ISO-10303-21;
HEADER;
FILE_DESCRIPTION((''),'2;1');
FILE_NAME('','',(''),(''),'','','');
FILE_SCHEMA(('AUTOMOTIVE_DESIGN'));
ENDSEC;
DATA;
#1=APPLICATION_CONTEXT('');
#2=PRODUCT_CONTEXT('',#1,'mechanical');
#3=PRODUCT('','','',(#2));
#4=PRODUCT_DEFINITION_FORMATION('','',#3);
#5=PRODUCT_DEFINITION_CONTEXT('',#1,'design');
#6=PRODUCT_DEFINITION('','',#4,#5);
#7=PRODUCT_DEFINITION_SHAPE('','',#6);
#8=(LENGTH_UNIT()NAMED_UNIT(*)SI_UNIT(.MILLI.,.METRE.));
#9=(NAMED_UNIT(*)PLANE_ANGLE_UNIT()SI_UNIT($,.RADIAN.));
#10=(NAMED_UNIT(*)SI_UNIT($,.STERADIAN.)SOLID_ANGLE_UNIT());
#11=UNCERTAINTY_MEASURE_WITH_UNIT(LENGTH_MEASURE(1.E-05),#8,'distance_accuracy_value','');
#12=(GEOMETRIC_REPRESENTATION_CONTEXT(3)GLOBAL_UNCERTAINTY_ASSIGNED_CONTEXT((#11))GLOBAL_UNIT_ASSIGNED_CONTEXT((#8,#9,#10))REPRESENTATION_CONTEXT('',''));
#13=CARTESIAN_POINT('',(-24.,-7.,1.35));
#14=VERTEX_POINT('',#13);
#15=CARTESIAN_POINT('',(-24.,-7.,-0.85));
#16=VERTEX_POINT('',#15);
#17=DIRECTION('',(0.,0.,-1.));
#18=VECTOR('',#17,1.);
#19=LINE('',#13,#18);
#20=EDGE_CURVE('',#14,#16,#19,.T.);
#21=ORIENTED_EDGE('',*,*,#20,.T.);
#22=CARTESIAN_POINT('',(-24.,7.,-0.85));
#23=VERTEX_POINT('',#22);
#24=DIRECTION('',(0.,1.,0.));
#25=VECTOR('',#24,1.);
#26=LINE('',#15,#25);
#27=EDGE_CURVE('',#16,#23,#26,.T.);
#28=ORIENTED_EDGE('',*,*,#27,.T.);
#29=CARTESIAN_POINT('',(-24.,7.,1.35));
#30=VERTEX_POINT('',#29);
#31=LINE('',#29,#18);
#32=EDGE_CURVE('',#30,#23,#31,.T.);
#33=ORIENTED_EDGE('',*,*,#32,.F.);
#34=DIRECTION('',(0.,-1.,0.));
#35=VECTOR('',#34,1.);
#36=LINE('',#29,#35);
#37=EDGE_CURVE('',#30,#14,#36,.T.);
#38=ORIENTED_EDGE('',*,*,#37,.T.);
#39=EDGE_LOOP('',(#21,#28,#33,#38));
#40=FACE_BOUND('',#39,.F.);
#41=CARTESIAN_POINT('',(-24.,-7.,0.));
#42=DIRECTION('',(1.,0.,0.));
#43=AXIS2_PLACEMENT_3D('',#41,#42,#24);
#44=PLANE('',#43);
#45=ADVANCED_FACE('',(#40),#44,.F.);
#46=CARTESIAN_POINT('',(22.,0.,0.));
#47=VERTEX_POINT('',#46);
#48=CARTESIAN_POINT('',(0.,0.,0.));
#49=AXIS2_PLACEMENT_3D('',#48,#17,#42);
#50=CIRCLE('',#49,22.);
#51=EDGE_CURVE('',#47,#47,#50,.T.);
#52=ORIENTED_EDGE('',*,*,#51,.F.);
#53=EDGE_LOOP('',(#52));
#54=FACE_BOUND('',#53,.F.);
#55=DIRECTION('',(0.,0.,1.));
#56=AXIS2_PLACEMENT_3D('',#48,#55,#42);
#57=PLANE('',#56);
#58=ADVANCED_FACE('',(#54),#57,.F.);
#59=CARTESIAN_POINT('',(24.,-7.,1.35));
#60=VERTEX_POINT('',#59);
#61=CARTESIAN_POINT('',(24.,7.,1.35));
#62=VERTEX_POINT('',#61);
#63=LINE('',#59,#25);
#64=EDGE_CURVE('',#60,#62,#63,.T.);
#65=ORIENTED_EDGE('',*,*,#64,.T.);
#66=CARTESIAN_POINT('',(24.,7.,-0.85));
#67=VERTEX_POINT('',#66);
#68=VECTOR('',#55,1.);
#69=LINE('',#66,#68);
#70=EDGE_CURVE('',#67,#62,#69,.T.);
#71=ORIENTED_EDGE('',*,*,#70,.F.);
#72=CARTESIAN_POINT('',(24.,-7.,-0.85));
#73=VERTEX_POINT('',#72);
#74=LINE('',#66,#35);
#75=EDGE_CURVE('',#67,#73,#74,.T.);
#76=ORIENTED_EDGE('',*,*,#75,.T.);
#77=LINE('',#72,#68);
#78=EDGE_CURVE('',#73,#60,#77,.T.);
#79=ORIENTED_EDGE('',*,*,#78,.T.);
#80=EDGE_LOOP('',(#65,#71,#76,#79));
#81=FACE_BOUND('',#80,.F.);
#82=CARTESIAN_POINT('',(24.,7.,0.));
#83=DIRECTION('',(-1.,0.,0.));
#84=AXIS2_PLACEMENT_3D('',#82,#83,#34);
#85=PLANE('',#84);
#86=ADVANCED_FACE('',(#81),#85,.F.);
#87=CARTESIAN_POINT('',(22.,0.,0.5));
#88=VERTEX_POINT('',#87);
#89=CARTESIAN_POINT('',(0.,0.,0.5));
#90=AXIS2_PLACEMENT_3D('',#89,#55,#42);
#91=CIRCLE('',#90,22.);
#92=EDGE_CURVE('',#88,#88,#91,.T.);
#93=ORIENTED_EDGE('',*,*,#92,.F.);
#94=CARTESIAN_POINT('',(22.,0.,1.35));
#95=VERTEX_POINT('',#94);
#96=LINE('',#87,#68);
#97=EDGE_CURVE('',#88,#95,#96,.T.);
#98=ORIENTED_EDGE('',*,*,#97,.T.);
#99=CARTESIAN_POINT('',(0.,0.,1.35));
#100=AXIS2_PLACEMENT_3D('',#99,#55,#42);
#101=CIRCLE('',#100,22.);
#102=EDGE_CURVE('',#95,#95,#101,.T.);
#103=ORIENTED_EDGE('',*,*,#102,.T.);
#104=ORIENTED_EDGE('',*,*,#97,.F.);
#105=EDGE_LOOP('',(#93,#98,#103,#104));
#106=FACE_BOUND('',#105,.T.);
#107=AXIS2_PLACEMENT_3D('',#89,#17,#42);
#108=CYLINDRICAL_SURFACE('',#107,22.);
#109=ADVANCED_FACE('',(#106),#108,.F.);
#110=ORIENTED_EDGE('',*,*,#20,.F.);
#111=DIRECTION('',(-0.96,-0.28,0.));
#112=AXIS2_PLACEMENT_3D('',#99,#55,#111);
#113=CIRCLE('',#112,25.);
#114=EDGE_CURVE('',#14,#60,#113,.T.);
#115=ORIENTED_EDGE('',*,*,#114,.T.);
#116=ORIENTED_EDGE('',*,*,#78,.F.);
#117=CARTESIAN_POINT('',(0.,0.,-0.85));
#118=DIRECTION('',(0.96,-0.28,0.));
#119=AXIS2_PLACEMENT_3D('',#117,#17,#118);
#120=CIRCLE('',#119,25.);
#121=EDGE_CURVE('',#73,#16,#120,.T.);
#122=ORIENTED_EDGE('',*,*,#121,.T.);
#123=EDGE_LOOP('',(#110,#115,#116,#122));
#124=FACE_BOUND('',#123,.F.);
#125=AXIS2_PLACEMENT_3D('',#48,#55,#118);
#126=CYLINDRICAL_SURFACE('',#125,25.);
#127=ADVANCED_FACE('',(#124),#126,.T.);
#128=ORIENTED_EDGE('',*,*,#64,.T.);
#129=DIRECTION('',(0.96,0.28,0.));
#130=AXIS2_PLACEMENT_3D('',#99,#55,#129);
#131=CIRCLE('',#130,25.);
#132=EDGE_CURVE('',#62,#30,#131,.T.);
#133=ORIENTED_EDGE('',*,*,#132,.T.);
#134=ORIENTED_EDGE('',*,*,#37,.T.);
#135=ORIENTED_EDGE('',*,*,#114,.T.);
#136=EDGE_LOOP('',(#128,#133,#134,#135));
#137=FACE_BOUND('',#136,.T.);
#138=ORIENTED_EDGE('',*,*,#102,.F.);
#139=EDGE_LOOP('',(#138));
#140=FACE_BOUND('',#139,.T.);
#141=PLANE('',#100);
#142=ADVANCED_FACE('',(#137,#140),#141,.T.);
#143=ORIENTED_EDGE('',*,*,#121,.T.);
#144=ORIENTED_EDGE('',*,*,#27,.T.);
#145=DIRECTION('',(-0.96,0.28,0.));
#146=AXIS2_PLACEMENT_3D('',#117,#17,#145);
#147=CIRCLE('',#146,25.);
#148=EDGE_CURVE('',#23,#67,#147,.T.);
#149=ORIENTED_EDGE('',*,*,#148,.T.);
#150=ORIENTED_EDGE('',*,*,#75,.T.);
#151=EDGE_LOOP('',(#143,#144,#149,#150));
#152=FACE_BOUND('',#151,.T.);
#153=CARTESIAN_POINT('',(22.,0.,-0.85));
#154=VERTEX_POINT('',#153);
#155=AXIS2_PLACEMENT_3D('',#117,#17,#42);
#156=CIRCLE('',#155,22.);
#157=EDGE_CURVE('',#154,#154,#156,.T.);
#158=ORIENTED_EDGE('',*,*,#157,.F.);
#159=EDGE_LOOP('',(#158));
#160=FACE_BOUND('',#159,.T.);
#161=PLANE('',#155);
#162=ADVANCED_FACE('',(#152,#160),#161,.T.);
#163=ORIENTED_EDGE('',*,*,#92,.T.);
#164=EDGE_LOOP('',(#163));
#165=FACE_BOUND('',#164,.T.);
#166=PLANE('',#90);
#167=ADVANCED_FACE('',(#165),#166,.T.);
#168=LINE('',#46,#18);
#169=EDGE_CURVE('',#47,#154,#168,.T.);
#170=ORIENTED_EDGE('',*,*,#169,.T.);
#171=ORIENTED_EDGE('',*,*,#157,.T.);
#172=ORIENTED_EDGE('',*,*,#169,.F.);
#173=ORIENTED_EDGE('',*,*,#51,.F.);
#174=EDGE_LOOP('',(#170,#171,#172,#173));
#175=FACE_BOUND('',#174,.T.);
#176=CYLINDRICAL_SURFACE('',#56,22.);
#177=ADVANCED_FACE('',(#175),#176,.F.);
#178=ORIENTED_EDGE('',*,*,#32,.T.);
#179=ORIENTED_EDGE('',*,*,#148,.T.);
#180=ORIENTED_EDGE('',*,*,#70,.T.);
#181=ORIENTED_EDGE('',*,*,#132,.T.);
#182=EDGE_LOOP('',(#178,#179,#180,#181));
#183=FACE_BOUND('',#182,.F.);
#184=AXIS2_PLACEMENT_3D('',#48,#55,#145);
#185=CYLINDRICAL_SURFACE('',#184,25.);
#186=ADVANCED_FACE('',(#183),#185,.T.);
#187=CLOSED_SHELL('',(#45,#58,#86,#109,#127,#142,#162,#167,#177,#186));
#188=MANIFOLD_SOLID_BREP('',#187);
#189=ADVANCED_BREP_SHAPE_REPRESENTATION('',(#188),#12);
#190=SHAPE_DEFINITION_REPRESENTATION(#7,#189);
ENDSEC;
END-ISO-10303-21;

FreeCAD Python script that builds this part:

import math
import FreeCAD as App
import Part
import Sketcher

V = App.Vector

doc = App.newDocument("Part")
body = doc.addObject("PartDesign::Body", "Body")

# Sketch on XY plane
sketch1 = body.newObject("Sketcher::SketchObject", "Sketch")
sketch1.AttachmentSupport = (doc.getObject("XY_Plane"), [""])
sketch1.MapMode = "FlatFace"
sketch1.addGeometry([
    Part.LineSegment(V(24, -7, 0), V(24, 7, 0)),
    Part.ArcOfCircle(Part.Circle(V(0, 0, 0), V(0, 0, 1), 25), math.radians(16), math.radians(164)),
    Part.LineSegment(V(-24, 7, 0), V(-24, -7, 0)),
    Part.ArcOfCircle(Part.Circle(V(0, 0, 0), V(0, 0, 1), 25), math.radians(-164), math.radians(-16)),
], False)
sketch1.addConstraint([
    Sketcher.Constraint("Coincident", 0, 2, 1, 1),
    Sketcher.Constraint("Coincident", 1, 2, 2, 1),
    Sketcher.Constraint("Coincident", 2, 2, 3, 1),
    Sketcher.Constraint("Coincident", 3, 2, 0, 1),
    Sketcher.Constraint("Vertical", 0),
    Sketcher.Constraint("Vertical", 2),
    Sketcher.Constraint("Coincident", 1, 3, -1, 1),
    Sketcher.Constraint("Coincident", 3, 3, -1, 1),
    Sketcher.Constraint("Equal", 1, 3),
    Sketcher.Constraint("Horizontal", 0, 2, 1, 2),
    Sketcher.Constraint("Radius", 1, 25.0),
    Sketcher.Constraint("DistanceY", 0, 1, 0, 2, 14.0),
])
pad1 = body.newObject("PartDesign::Pad", "Pad")
pad1.Profile = sketch1
pad1.Length = 0.5

# Sketch on XY plane
sketch2 = body.newObject("Sketcher::SketchObject", "Sketch001")
sketch2.AttachmentSupport = (doc.getObject("XY_Plane"), [""])
sketch2.MapMode = "FlatFace"
sketch2.AttachmentOffset = App.Placement(V(0, 0, 0.5), App.Rotation())
sketch2.addGeometry([
    Part.ArcOfCircle(Part.Circle(V(0, 0, 0), V(0, 0, 1), 25), math.radians(-164), math.radians(-16)),  # 0
    Part.LineSegment(V(24, -7, 0), V(24, 7, 0)),  # 1
    Part.ArcOfCircle(Part.Circle(V(0, 0, 0), V(0, 0, 1), 25), math.radians(16), math.radians(164)),  # 2
    Part.LineSegment(V(-24, 7, 0), V(-24, -7, 0)),  # 3
    Part.Circle(V(0, 0, 0), V(0, 0, 1), 22),  # 4
], False)
sketch2.addConstraint([
    Sketcher.Constraint("Coincident", 0, 2, 1, 1),
    Sketcher.Constraint("Coincident", 1, 2, 2, 1),
    Sketcher.Constraint("Coincident", 2, 2, 3, 1),
    Sketcher.Constraint("Coincident", 3, 2, 0, 1),
    Sketcher.Constraint("Vertical", 1),
    Sketcher.Constraint("Vertical", 3),
    Sketcher.Constraint("Coincident", 0, 3, -1, 1),
    Sketcher.Constraint("Coincident", 2, 3, -1, 1),
    Sketcher.Constraint("Coincident", 4, 3, -1, 1),
    Sketcher.Constraint("Equal", 0, 2),
    Sketcher.Constraint("Horizontal", 1, 2, 2, 2),
    Sketcher.Constraint("Diameter", 4, 44.0),
    Sketcher.Constraint("Radius", 0, 25.0),
    Sketcher.Constraint("DistanceY", 1, 1, 1, 2, 14.0),
])
pad2 = body.newObject("PartDesign::Pad", "Pad001")
pad2.Profile = sketch2
pad2.Length = 0.85

# Sketch on XY plane
sketch3 = body.newObject("Sketcher::SketchObject", "Sketch002")
sketch3.AttachmentSupport = (doc.getObject("XY_Plane"), [""])
sketch3.MapMode = "FlatFace"
sketch3.addGeometry([
    Part.ArcOfCircle(Part.Circle(V(0, 0, 0), V(0, 0, 1), 25), math.radians(-164), math.radians(-16)),  # 0
    Part.LineSegment(V(-24, -7, 0), V(-24, 7, 0)),  # 1
    Part.ArcOfCircle(Part.Circle(V(0, 0, 0), V(0, 0, 1), 25), math.radians(16), math.radians(164)),  # 2
    Part.LineSegment(V(24, 7, 0), V(24, -7, 0)),  # 3
    Part.Circle(V(0, 0, 0), V(0, 0, 1), 22),  # 4
], False)
sketch3.addConstraint([
    Sketcher.Constraint("Coincident", 0, 1, 1, 1),
    Sketcher.Constraint("Coincident", 1, 2, 2, 2),
    Sketcher.Constraint("Coincident", 2, 1, 3, 1),
    Sketcher.Constraint("Coincident", 3, 2, 0, 2),
    Sketcher.Constraint("Vertical", 1),
    Sketcher.Constraint("Vertical", 3),
    Sketcher.Constraint("Coincident", 0, 3, -1, 1),
    Sketcher.Constraint("Coincident", 2, 3, -1, 1),
    Sketcher.Constraint("Coincident", 4, 3, -1, 1),
    Sketcher.Constraint("Equal", 0, 2),
    Sketcher.Constraint("Horizontal", 1, 2, 2, 1),
    Sketcher.Constraint("Diameter", 4, 44.0),
    Sketcher.Constraint("Radius", 0, 25.0),
    Sketcher.Constraint("DistanceY", 1, 1, 1, 2, 14.0),
])
pad3 = body.newObject("PartDesign::Pad", "Pad002")
pad3.Profile = sketch3
pad3.Length = 0.85
pad3.Reversed = True

doc.recompute()
